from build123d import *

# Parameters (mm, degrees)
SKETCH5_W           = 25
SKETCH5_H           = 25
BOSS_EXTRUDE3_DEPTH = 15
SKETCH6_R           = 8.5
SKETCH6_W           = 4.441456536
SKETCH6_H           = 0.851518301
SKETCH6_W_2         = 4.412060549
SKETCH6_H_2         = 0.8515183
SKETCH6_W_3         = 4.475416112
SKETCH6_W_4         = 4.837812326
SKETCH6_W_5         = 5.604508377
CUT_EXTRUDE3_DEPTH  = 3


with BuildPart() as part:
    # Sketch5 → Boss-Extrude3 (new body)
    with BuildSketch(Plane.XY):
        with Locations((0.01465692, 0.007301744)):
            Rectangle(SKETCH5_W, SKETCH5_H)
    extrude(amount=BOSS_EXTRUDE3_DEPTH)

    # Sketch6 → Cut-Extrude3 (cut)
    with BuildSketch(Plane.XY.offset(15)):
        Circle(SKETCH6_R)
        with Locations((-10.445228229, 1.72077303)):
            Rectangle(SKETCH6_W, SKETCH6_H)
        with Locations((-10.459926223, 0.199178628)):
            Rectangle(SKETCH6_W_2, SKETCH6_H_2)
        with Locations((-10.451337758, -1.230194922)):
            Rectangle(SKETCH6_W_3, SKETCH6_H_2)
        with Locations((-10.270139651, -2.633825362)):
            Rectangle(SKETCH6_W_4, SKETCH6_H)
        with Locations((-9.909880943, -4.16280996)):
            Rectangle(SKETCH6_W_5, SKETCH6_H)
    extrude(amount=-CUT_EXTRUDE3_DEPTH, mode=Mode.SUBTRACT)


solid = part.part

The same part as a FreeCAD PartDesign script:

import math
import FreeCAD as App
import Part
import Sketcher


def add_polygon(sketch, points):
    """Adds a closed chain of lines whose ends are joined by coincident constraints."""
    first, n = sketch.GeometryCount, len(points)
    for a, b in zip(points, points[1:] + points[:1]):
        sketch.addGeometry(Part.LineSegment(App.Vector(*a, 0), App.Vector(*b, 0)), False)
    for i in range(n):
        sketch.addConstraint(Sketcher.Constraint("Coincident", first + i, 2, first + (i + 1) % n, 1))

doc = App.newDocument("Part")
body = doc.addObject("PartDesign::Body", "Body")

sketch1 = doc.addObject("Sketcher::SketchObject", "Sketch")
body.addObject(sketch1)
sketch1.AttachmentSupport = (doc.XY_Plane, [""])
sketch1.MapMode = "FlatFace"
add_polygon(sketch1, [(-12, 13), (-12, -12), (13, -12), (13, 13)])
sketch1.addConstraint([
    Sketcher.Constraint("Vertical", 0),
    Sketcher.Constraint("Horizontal", 1),
    Sketcher.Constraint("Vertical", 2),
    Sketcher.Constraint("Horizontal", 3),
    Sketcher.Constraint("Equal", 3, 0),
    Sketcher.Constraint("DistanceX", 1, 1, 1, 2, 25.0),
    Sketcher.Constraint("DistanceY", 0, 2, -1, 1, 12.492698),
    Sketcher.Constraint("DistanceX", 0, 2, -1, 1, 12.485343),
])
pad1 = doc.addObject("PartDesign::Pad", "Pad")
body.addObject(pad1)
pad1.Profile = sketch1
pad1.Length = 15

sketch2 = doc.addObject("Sketcher::SketchObject", "Sketch001")
body.addObject(sketch2)
sketch2.AttachmentSupport = (doc.XY_Plane, [""])
sketch2.MapMode = "FlatFace"
sketch2.AttachmentOffset = App.Placement(App.Vector(0, 0, 15), App.Rotation())
sketch2.addGeometry([
    Part.LineSegment(App.Vector(-12.7, 2.1, 0), App.Vector(-12.7, 1.3, 0)),
    Part.LineSegment(App.Vector(-12.7, 1.3, 0), App.Vector(-8.4, 1.3, 0)),
    Part.ArcOfCircle(Part.Circle(App.Vector(0, 0, 0), App.Vector(0, 0, 1), 8.5), math.radians(171.24), math.radians(175.78)),
    Part.LineSegment(App.Vector(-8.5, 0.6, 0), App.Vector(-12.7, 0.6, 0)),
    Part.LineSegment(App.Vector(-12.7, 0.6, 0), App.Vector(-12.7, -0.2, 0)),
    Part.LineSegment(App.Vector(-12.7, -0.2, 0), App.Vector(-8.5, -0.2, 0)),
    Part.ArcOfCircle(Part.Circle(App.Vector(0, 0, 0), App.Vector(0, 0, 1), 8.5), math.radians(-178.47), math.radians(-174.57)),
    Part.LineSegment(App.Vector(-8.5, -0.8, 0), App.Vector(-12.7, -0.8, 0)),
    Part.LineSegment(App.Vector(-12.7, -0.8, 0), App.Vector(-12.7, -1.7, 0)),
    Part.LineSegment(App.Vector(-12.7, -1.7, 0), App.Vector(-8.3, -1.7, 0)),
    Part.ArcOfCircle(Part.Circle(App.Vector(0, 0, 0), App.Vector(0, 0, 1), 8.5), math.radians(-168.77), math.radians(-164.94)),
    Part.LineSegment(App.Vector(-8.2, -2.2, 0), App.Vector(-12.7, -2.2, 0)),
    Part.LineSegment(App.Vector(-12.7, -2.2, 0), App.Vector(-12.7, -3.1, 0)),
    Part.LineSegment(App.Vector(-12.7, -3.1, 0), App.Vector(-7.9, -3.1, 0)),
    Part.ArcOfCircle(Part.Circle(App.Vector(0, 0, 0), App.Vector(0, 0, 1), 8.5), math.radians(-158.9), math.radians(-153.92)),
    Part.LineSegment(App.Vector(-7.6, -3.7, 0), App.Vector(-12.7, -3.7, 0)),
    Part.LineSegment(App.Vector(-12.7, -3.7, 0), App.Vector(-12.7, -4.6, 0)),
    Part.LineSegment(App.Vector(-12.7, -4.6, 0), App.Vector(-7.2, -4.6, 0)),
    Part.ArcOfCircle(Part.Circle(App.Vector(0, 0, 0), App.Vector(0, 0, 1), 8.5), math.radians(-147), math.radians(165)),
    Part.LineSegment(App.Vector(-8.2, 2.1, 0), App.Vector(-12.7, 2.1, 0)),
], False)
sketch2.addConstraint([
    Sketcher.Constraint("Coincident", 0, 2, 1, 1),
    Sketcher.Constraint("Coincident", 1, 2, 2, 1),
    Sketcher.Constraint("Coincident", 2, 2, 3, 1),
    Sketcher.Constraint("Coincident", 3, 2, 4, 1),
    Sketcher.Constraint("Coincident", 4, 2, 5, 1),
    Sketcher.Constraint("Coincident", 5, 2, 6, 1),
    Sketcher.Constraint("Coincident", 6, 2, 7, 1),
    Sketcher.Constraint("Coincident", 7, 2, 8, 1),
    Sketcher.Constraint("Coincident", 8, 2, 9, 1),
    Sketcher.Constraint("Coincident", 9, 2, 10, 1),
    Sketcher.Constraint("Coincident", 10, 2, 11, 1),
    Sketcher.Constraint("Coincident", 11, 2, 12, 1),
    Sketcher.Constraint("Coincident", 12, 2, 13, 1),
    Sketcher.Constraint("Coincident", 13, 2, 14, 1),
    Sketcher.Constraint("Coincident", 14, 2, 15, 1),
    Sketcher.Constraint("Coincident", 15, 2, 16, 1),
    Sketcher.Constraint("Coincident", 16, 2, 17, 1),
    Sketcher.Constraint("Coincident", 17, 2, 18, 1),
    Sketcher.Constraint("Coincident", 18, 2, 19, 1),
    Sketcher.Constraint("Coincident", 19, 2, 0, 1),
    Sketcher.Constraint("Vertical", 0),
    Sketcher.Constraint("Horizontal", 1),
    Sketcher.Constraint("Horizontal", 3),
    Sketcher.Constraint("Vertical", 4),
    Sketcher.Constraint("Horizontal", 5),
    Sketcher.Constraint("Horizontal", 7),
    Sketcher.Constraint("Vertical", 8),
    Sketcher.Constraint("Horizontal", 9),
    Sketcher.Constraint("Horizontal", 11),
    Sketcher.Constraint("Vertical", 12),
    Sketcher.Constraint("Horizontal", 13),
    Sketcher.Constraint("Horizontal", 15),
    Sketcher.Constraint("Vertical", 16),
    Sketcher.Constraint("Horizontal", 17),
    Sketcher.Constraint("Horizontal", 19),
    Sketcher.Constraint("Coincident", 2, 3, -1, 1),
    Sketcher.Constraint("Coincident", 6, 3, -1, 1),
    Sketcher.Constraint("Coincident", 10, 3, -1, 1),
    Sketcher.Constraint("Coincident", 14, 3, -1, 1),
    Sketcher.Constraint("Coincident", 18, 3, -1, 1),
    Sketcher.Constraint("Equal", 2, 6),
    Sketcher.Constraint("Equal", 6, 10),
    Sketcher.Constraint("Equal", 10, 14),
    Sketcher.Constraint("Equal", 14, 18),
    Sketcher.Constraint("Vertical", 0, 2, 3, 2),
    Sketcher.Constraint("Vertical", 8, 2, 11, 2),
    Sketcher.Constraint("Equal", 0, 4),
    Sketcher.Constraint("Equal", 4, 8),
    Sketcher.Constraint("Equal", 8, 12),
    Sketcher.Constraint("Equal", 12, 16),
    Sketcher.Constraint("Radius", 2, 8.5),
    Sketcher.Constraint("DistanceX", 3, 2, 3, 1, 4.188961),
    Sketcher.Constraint("DistanceX", 9, 1, 9, 2, 4.351911),
    Sketcher.Constraint("DistanceX", 13, 1, 13, 2, 4.758791),
    Sketcher.Constraint("DistanceX", 15, 2, 15, 1, 5.07771),
    Sketcher.Constraint("DistanceY", 0, 2, 0, 1, 0.851518),
    Sketcher.Constraint("DistanceX", 18, 2, -1, 1, 8.2245),
    Sketcher.Constraint("DistanceX", 2, 2, 10, 2, 0.268802),
    Sketcher.Constraint("DistanceX", 1, 1, 1, 2, 4.265186),
    Sketcher.Constraint("DistanceX", 17, 1, 17, 2, 5.557065),
])
pocket1 = doc.addObject("PartDesign::Pocket", "Pocket")
body.addObject(pocket1)
pocket1.Profile = sketch2
pocket1.Length = 3

doc.recompute()
